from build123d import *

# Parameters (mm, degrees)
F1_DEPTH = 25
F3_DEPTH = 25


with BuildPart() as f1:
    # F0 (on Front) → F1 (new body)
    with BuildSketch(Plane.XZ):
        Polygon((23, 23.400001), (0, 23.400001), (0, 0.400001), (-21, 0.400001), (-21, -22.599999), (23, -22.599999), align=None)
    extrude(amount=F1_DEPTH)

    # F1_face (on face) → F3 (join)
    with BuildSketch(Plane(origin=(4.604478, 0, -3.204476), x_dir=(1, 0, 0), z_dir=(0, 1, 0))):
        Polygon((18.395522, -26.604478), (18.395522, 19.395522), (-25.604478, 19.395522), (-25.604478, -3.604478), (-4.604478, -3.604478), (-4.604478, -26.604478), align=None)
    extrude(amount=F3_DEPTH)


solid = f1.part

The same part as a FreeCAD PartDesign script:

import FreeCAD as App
import Part
import Sketcher


def add_polygon(sketch, points):
    """Adds a closed chain of lines whose ends are joined by coincident constraints."""
    first, n = sketch.GeometryCount, len(points)
    for a, b in zip(points, points[1:] + points[:1]):
        sketch.addGeometry(Part.LineSegment(App.Vector(*a, 0), App.Vector(*b, 0)), False)
    for i in range(n):
        sketch.addConstraint(Sketcher.Constraint("Coincident", first + i, 2, first + (i + 1) % n, 1))

doc = App.newDocument("Part")
body = doc.addObject("PartDesign::Body", "Body")

# Sketch on XZ plane
sketch1 = body.newObject("Sketcher::SketchObject", "Sketch")
sketch1.AttachmentSupport = (doc.getObject("XZ_Plane"), [""])
sketch1.MapMode = "FlatFace"
add_polygon(sketch1, [(23, 23), (0, 23), (0, 0), (-21, 0), (-21, -23), (23, -23)])  # lines 0-5
sketch1.addConstraint(Sketcher.Constraint("Horizontal", 0))
sketch1.addConstraint(Sketcher.Constraint("Vertical", 1))
sketch1.addConstraint(Sketcher.Constraint("Horizontal", 2))
sketch1.addConstraint(Sketcher.Constraint("Vertical", 3))
sketch1.addConstraint(Sketcher.Constraint("Horizontal", 4))
sketch1.addConstraint(Sketcher.Constraint("Vertical", 5))
sketch1.addConstraint(Sketcher.Constraint("PointOnObject", 0, 2, -2))
sketch1.addConstraint(Sketcher.Constraint("Equal", 0, 1))
sketch1.addConstraint(Sketcher.Constraint("Equal", 1, 3))
sketch1.addConstraint(Sketcher.Constraint("DistanceX", 0, 2, 0, 1, 23.0))
sketch1.addConstraint(Sketcher.Constraint("DistanceX", 2, 2, 2, 1, 21.0))
sketch1.addConstraint(Sketcher.Constraint("DistanceY", -1, 1, 0, 2, 23.400001))
pad1 = body.newObject("PartDesign::Pad", "Pad")
pad1.Profile = sketch1
pad1.Length = 25

# Sketch on XZ plane
sketch2 = body.newObject("Sketcher::SketchObject", "Sketch001")
sketch2.AttachmentSupport = (doc.getObject("XZ_Plane"), [""])
sketch2.MapMode = "FlatFace"
add_polygon(sketch2, [(23, 23), (23, -23), (-21, -23), (-21, 0), (0, 0), (0, 23)])  # lines 0-5
sketch2.addConstraint(Sketcher.Constraint("Vertical", 0))
sketch2.addConstraint(Sketcher.Constraint("Horizontal", 1))
sketch2.addConstraint(Sketcher.Constraint("Vertical", 2))
sketch2.addConstraint(Sketcher.Constraint("Horizontal", 3))
sketch2.addConstraint(Sketcher.Constraint("Vertical", 4))
sketch2.addConstraint(Sketcher.Constraint("Horizontal", 5))
sketch2.addConstraint(Sketcher.Constraint("PointOnObject", 3, 2, -2))
sketch2.addConstraint(Sketcher.Constraint("Equal", 5, 2))
sketch2.addConstraint(Sketcher.Constraint("Equal", 2, 4))
sketch2.addConstraint(Sketcher.Constraint("DistanceX", 1, 2, 1, 1, 44.0))
sketch2.addConstraint(Sketcher.Constraint("DistanceX", 3, 1, 3, 2, 21.0))
sketch2.addConstraint(Sketcher.Constraint("DistanceY", 0, 2, -1, 1, 22.599998))
pad2 = body.newObject("PartDesign::Pad", "Pad001")
pad2.Profile = sketch2
pad2.Length = 25
pad2.Reversed = True

doc.recompute()
